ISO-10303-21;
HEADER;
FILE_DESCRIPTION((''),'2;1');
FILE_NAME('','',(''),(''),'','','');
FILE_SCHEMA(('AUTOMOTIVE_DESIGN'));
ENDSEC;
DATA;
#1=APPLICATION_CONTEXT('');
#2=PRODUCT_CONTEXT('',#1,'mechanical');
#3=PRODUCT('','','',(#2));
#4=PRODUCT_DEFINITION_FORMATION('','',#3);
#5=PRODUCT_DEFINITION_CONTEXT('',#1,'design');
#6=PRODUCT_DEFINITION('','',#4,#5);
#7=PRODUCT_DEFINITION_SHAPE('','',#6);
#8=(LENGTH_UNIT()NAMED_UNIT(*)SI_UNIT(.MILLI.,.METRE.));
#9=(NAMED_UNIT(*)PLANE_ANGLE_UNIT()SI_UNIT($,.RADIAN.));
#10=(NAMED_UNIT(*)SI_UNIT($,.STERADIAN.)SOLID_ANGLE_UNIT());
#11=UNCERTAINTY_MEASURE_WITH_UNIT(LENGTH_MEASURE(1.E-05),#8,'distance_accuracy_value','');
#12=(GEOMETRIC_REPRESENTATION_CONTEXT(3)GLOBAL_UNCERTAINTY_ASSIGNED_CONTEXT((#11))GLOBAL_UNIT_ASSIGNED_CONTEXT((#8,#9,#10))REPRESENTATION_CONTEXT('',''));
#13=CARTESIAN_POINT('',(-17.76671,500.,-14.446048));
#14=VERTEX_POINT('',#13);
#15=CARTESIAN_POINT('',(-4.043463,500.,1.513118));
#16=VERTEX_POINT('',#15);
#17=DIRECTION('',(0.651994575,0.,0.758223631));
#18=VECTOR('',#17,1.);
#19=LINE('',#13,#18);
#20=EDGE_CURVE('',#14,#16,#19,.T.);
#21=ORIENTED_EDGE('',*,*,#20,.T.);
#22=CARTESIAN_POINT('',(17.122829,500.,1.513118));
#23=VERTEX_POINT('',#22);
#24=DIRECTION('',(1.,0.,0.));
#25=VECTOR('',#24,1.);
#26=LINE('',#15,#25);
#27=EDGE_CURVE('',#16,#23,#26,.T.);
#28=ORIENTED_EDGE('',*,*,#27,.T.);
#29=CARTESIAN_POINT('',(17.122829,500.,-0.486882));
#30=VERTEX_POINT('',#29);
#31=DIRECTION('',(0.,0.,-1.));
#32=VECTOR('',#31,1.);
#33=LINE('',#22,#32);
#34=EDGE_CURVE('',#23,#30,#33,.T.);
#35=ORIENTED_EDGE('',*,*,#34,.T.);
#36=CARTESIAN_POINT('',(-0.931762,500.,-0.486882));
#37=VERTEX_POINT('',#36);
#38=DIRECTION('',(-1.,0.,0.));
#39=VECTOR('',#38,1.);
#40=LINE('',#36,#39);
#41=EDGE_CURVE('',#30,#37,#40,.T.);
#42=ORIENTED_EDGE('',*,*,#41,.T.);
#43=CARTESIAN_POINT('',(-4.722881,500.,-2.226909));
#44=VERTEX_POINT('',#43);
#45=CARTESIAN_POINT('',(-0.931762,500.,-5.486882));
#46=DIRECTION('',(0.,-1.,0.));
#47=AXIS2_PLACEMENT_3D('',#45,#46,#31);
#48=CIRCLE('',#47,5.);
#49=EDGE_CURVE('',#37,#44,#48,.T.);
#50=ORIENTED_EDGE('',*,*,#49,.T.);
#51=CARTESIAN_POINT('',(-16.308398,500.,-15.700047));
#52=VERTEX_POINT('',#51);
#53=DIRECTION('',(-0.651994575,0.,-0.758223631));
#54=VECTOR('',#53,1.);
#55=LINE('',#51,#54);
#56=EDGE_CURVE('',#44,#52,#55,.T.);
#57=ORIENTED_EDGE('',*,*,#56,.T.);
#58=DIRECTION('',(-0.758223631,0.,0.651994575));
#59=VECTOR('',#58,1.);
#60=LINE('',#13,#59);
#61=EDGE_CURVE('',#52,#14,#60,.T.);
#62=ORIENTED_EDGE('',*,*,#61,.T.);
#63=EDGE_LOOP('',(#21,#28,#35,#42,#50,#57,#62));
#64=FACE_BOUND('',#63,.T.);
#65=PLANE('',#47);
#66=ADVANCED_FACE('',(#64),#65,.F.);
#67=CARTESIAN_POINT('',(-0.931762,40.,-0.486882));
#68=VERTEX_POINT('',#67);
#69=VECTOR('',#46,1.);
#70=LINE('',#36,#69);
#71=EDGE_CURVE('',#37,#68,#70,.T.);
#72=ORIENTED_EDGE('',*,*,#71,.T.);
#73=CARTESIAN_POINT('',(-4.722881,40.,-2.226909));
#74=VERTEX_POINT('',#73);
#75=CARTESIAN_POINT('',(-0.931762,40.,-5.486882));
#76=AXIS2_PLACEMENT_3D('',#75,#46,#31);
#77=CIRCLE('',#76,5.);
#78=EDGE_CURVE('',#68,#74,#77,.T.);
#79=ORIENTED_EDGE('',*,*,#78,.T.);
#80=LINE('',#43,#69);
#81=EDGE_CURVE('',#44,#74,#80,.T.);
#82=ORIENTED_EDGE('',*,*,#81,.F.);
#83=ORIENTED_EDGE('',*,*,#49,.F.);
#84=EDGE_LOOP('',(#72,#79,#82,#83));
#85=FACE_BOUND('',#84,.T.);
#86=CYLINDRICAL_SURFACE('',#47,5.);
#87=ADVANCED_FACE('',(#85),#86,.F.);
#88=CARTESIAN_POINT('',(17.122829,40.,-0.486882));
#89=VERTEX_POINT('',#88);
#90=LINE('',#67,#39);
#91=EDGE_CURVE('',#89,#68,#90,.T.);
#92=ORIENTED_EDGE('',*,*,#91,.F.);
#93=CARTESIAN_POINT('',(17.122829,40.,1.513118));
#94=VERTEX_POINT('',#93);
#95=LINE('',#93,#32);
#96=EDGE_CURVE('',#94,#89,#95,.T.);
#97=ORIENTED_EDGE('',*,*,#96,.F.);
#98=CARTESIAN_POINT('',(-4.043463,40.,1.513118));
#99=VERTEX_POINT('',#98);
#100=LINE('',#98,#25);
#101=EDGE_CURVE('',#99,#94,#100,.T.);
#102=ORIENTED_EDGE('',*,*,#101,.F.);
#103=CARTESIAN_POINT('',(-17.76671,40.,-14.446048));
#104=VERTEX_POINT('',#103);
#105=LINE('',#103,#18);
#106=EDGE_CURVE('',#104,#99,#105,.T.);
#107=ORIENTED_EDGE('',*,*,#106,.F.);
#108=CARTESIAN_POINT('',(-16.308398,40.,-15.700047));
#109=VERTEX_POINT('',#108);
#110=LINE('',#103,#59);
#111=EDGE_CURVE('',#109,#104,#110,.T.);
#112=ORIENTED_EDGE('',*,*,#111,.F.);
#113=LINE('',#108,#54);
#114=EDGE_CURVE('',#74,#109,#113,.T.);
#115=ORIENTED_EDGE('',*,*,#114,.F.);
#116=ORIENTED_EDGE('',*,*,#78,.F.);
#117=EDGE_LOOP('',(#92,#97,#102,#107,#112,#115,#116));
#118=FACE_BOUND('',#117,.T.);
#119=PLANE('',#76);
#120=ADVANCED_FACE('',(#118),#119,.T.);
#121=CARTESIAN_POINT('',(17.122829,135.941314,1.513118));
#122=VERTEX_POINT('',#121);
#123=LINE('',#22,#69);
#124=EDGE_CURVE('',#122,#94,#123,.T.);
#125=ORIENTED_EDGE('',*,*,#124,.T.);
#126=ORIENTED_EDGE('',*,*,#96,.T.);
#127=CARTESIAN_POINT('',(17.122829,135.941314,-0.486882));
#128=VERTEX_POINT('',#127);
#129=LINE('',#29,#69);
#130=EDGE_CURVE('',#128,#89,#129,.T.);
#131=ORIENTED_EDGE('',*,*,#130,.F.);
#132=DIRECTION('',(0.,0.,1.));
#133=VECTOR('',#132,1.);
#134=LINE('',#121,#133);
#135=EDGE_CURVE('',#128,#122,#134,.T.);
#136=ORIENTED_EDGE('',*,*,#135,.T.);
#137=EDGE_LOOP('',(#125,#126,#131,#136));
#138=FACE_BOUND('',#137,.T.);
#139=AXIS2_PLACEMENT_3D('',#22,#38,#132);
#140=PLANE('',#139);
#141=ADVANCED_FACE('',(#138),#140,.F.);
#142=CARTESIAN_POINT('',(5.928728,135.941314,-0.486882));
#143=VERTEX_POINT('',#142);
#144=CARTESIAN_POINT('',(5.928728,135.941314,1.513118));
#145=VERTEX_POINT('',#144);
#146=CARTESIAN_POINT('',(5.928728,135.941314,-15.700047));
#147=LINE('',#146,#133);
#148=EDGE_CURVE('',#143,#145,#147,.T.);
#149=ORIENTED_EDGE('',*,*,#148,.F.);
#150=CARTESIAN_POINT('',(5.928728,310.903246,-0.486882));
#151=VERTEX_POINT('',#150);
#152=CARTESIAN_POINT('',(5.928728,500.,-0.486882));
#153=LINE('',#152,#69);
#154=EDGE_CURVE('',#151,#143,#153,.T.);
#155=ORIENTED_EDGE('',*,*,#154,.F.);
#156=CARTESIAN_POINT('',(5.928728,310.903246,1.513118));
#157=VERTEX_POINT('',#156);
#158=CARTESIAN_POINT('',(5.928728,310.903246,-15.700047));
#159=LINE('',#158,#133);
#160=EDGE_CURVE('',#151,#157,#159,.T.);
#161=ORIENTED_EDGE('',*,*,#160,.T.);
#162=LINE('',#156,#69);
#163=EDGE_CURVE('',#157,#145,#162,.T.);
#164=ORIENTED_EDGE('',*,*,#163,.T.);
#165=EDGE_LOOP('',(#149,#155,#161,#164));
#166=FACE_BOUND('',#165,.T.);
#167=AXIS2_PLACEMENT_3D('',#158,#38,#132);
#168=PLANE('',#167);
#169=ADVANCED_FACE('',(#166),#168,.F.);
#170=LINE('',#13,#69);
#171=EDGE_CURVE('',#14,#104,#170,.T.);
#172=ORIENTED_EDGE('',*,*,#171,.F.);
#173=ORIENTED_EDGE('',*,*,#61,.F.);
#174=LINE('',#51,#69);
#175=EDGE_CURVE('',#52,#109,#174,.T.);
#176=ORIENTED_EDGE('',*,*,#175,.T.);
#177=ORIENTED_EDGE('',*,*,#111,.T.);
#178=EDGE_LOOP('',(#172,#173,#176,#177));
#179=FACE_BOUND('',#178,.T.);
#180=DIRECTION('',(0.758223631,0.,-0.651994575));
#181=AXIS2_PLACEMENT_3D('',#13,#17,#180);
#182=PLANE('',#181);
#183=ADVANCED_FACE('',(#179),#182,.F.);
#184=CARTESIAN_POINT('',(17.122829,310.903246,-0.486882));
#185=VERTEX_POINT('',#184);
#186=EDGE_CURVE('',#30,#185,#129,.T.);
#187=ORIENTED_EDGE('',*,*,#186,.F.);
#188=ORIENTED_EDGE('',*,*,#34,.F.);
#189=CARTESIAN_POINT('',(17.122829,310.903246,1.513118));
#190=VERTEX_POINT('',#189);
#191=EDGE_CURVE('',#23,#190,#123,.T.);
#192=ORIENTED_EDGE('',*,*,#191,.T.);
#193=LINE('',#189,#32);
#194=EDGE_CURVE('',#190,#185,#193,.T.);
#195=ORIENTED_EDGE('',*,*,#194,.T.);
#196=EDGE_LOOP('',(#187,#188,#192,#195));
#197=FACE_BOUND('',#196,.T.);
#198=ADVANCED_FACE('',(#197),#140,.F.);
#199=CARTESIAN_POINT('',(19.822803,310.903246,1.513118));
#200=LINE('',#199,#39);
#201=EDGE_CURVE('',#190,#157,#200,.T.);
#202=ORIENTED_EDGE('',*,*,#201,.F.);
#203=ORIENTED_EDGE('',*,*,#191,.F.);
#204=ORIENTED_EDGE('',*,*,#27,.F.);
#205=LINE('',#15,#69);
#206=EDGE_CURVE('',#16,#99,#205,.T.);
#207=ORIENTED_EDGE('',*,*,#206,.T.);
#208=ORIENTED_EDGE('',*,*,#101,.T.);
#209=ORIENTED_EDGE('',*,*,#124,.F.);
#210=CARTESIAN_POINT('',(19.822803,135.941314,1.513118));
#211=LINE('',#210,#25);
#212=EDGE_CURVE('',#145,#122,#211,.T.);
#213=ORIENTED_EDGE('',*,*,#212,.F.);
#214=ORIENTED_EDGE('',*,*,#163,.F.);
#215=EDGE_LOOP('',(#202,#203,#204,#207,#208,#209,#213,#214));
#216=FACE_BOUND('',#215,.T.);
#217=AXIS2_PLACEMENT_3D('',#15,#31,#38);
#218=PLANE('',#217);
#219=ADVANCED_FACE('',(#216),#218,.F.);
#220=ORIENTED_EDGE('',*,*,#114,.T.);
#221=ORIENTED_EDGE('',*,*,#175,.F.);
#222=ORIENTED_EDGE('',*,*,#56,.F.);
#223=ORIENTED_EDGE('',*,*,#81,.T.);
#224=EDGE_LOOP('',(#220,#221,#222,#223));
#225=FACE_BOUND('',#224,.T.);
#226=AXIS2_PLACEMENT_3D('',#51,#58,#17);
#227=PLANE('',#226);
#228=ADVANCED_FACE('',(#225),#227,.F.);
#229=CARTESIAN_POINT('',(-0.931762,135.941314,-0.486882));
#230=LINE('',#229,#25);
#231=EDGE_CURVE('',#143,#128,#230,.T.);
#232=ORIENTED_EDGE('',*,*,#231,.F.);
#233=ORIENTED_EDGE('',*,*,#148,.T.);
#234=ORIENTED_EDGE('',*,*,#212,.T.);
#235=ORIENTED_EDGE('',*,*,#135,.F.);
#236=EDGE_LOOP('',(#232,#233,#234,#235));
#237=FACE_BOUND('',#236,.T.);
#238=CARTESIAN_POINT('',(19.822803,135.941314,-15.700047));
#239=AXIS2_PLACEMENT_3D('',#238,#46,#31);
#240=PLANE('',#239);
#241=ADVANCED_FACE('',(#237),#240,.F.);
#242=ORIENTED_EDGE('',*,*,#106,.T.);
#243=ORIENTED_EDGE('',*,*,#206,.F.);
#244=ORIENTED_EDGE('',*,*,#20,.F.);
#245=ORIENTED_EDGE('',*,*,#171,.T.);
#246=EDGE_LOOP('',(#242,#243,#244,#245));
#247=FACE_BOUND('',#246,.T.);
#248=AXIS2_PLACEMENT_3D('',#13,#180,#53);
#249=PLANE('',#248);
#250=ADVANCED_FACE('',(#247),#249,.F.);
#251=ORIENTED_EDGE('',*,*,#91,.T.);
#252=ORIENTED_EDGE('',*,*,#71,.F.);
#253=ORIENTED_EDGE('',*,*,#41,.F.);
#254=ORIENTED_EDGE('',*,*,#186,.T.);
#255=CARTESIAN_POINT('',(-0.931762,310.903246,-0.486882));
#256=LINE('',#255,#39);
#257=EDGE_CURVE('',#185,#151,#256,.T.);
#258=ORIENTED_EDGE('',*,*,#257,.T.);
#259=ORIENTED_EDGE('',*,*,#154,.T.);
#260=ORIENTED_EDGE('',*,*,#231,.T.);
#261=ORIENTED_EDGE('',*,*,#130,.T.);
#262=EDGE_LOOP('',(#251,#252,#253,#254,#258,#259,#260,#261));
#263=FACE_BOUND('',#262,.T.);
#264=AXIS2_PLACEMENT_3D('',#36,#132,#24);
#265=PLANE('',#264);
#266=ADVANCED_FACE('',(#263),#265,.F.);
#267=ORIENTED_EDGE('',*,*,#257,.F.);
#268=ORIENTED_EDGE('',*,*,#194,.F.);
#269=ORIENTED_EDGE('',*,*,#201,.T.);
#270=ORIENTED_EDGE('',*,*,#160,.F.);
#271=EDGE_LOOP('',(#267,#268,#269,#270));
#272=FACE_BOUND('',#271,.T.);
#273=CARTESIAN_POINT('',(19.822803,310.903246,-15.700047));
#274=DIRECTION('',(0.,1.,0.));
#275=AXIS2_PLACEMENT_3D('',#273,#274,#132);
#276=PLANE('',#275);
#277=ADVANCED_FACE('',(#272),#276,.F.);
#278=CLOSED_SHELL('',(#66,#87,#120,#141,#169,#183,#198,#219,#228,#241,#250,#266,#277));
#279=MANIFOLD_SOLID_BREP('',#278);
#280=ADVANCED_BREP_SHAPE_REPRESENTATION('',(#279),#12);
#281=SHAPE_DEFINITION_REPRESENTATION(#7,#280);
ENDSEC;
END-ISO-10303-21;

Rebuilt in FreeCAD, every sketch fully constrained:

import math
import FreeCAD as App
import Part
import Sketcher
from FreeCAD import Vector

doc = App.newDocument("Part")
body = doc.addObject("PartDesign::Body", "Body")

# Sketch on XZ plane
sketch1 = body.newObject("Sketcher::SketchObject", "Sketch")
sketch1.AttachmentSupport = (doc.getObject("XZ_Plane"), [""])
sketch1.MapMode = "FlatFace"
sketch1.AttachmentOffset = App.Placement(Vector(0, 0, -40), App.Rotation())
sketch1.addGeometry(Part.LineSegment(Vector(-16.308398, -15.700047, 0), Vector(-17.76671, -14.446048, 0)), False)
sketch1.addGeometry(Part.LineSegment(Vector(-17.76671, -14.446048, 0), Vector(-4.043463, 1.513118, 0)), False)
sketch1.addGeometry(Part.LineSegment(Vector(-4.043463, 1.513118, 0), Vector(17.122829, 1.513118, 0)), False)
sketch1.addGeometry(Part.LineSegment(Vector(17.122829, 1.513118, 0), Vector(17.122829, -0.486882, 0)), False)
sketch1.addGeometry(Part.LineSegment(Vector(17.122829, -0.486882, 0), Vector(-0.931762, -0.486882, 0)), False)
sketch1.addGeometry(Part.ArcOfCircle(Part.Circle(Vector(-0.931762, -5.486882, 0), Vector(0, 0, 1), 5), math.radians(90), math.radians(139.307846)), False)
sketch1.addGeometry(Part.LineSegment(Vector(-4.722881, -2.226909, 0), Vector(-16.308398, -15.700047, 0)), False)
sketch1.addConstraint(Sketcher.Constraint("Coincident", 0, 2, 1, 1))
sketch1.addConstraint(Sketcher.Constraint("Coincident", 1, 2, 2, 1))
sketch1.addConstraint(Sketcher.Constraint("Coincident", 2, 2, 3, 1))
sketch1.addConstraint(Sketcher.Constraint("Coincident", 3, 2, 4, 1))
sketch1.addConstraint(Sketcher.Constraint("Tangent", 4, 2, 5, 1))
sketch1.addConstraint(Sketcher.Constraint("Tangent", 5, 2, 6, 1))
sketch1.addConstraint(Sketcher.Constraint("Coincident", 6, 2, 0, 1))
sketch1.addConstraint(Sketcher.Constraint("Horizontal", 2))
sketch1.addConstraint(Sketcher.Constraint("Vertical", 3))
sketch1.addConstraint(Sketcher.Constraint("Horizontal", 4))
sketch1.addConstraint(Sketcher.Constraint("Perpendicular", 0, 1))
sketch1.addConstraint(Sketcher.Constraint("Parallel", 1, 6))
sketch1.addConstraint(Sketcher.Constraint("Radius", 5, 5.0))
sketch1.addConstraint(Sketcher.Constraint("DistanceY", 3, 2, 3, 1, 2.0))
sketch1.addConstraint(Sketcher.Constraint("DistanceY", 6, 2, 0, 2, 1.253999))
sketch1.addConstraint(Sketcher.Constraint("Distance", 1, 21.048099))
sketch1.addConstraint(Sketcher.Constraint("DistanceX", 4, 2, 4, 1, 18.054592))
sketch1.addConstraint(Sketcher.Constraint("DistanceX", 1, 2, 5, 3, 3.111701))
sketch1.addConstraint(Sketcher.Constraint("DistanceY", 5, 3, -1, 1, 5.486882))
sketch1.addConstraint(Sketcher.Constraint("DistanceX", 0, 2, -1, 1, 17.76671))
pad1 = body.newObject("PartDesign::Pad", "Pad")
pad1.Profile = sketch1
pad1.Length = 460
pad1.Reversed = True

# Sketch on XY plane
sketch2 = body.newObject("Sketcher::SketchObject", "Sketch001")
sketch2.AttachmentSupport = (doc.getObject("XY_Plane"), [""])
sketch2.MapMode = "FlatFace"
sketch2.AttachmentOffset = App.Placement(Vector(0, 0, 1.513118), App.Rotation())
sketch2.addGeometry(Part.LineSegment(Vector(5.928728, 310.903246, 0), Vector(5.928728, 135.941314, 0)), False)
sketch2.addGeometry(Part.LineSegment(Vector(5.928728, 135.941314, 0), Vector(19.822803, 135.941314, 0)), False)
sketch2.addGeometry(Part.LineSegment(Vector(19.822803, 135.941314, 0), Vector(19.822803, 310.903246, 0)), False)
sketch2.addGeometry(Part.LineSegment(Vector(19.822803, 310.903246, 0), Vector(5.928728, 310.903246, 0)), False)
sketch2.addConstraint(Sketcher.Constraint("Coincident", 0, 2, 1, 1))
sketch2.addConstraint(Sketcher.Constraint("Coincident", 1, 2, 2, 1))
sketch2.addConstraint(Sketcher.Constraint("Coincident", 2, 2, 3, 1))
sketch2.addConstraint(Sketcher.Constraint("Coincident", 3, 2, 0, 1))
sketch2.addConstraint(Sketcher.Constraint("Vertical", 0))
sketch2.addConstraint(Sketcher.Constraint("Horizontal", 1))
sketch2.addConstraint(Sketcher.Constraint("Vertical", 2))
sketch2.addConstraint(Sketcher.Constraint("Horizontal", 3))
sketch2.addConstraint(Sketcher.Constraint("DistanceX", 1, 1, 1, 2, 13.894075))
sketch2.addConstraint(Sketcher.Constraint("DistanceY", 0, 2, 0, 1, 174.961932))
sketch2.addConstraint(Sketcher.Constraint("DistanceX", -1, 1, 0, 2, 5.928728))
sketch2.addConstraint(Sketcher.Constraint("DistanceY", -1, 1, 0, 2, 135.941314))
pocket1 = body.newObject("PartDesign::Pocket", "Pocket")
pocket1.Profile = sketch2
pocket1.Type = "ThroughAll"

doc.recompute()
